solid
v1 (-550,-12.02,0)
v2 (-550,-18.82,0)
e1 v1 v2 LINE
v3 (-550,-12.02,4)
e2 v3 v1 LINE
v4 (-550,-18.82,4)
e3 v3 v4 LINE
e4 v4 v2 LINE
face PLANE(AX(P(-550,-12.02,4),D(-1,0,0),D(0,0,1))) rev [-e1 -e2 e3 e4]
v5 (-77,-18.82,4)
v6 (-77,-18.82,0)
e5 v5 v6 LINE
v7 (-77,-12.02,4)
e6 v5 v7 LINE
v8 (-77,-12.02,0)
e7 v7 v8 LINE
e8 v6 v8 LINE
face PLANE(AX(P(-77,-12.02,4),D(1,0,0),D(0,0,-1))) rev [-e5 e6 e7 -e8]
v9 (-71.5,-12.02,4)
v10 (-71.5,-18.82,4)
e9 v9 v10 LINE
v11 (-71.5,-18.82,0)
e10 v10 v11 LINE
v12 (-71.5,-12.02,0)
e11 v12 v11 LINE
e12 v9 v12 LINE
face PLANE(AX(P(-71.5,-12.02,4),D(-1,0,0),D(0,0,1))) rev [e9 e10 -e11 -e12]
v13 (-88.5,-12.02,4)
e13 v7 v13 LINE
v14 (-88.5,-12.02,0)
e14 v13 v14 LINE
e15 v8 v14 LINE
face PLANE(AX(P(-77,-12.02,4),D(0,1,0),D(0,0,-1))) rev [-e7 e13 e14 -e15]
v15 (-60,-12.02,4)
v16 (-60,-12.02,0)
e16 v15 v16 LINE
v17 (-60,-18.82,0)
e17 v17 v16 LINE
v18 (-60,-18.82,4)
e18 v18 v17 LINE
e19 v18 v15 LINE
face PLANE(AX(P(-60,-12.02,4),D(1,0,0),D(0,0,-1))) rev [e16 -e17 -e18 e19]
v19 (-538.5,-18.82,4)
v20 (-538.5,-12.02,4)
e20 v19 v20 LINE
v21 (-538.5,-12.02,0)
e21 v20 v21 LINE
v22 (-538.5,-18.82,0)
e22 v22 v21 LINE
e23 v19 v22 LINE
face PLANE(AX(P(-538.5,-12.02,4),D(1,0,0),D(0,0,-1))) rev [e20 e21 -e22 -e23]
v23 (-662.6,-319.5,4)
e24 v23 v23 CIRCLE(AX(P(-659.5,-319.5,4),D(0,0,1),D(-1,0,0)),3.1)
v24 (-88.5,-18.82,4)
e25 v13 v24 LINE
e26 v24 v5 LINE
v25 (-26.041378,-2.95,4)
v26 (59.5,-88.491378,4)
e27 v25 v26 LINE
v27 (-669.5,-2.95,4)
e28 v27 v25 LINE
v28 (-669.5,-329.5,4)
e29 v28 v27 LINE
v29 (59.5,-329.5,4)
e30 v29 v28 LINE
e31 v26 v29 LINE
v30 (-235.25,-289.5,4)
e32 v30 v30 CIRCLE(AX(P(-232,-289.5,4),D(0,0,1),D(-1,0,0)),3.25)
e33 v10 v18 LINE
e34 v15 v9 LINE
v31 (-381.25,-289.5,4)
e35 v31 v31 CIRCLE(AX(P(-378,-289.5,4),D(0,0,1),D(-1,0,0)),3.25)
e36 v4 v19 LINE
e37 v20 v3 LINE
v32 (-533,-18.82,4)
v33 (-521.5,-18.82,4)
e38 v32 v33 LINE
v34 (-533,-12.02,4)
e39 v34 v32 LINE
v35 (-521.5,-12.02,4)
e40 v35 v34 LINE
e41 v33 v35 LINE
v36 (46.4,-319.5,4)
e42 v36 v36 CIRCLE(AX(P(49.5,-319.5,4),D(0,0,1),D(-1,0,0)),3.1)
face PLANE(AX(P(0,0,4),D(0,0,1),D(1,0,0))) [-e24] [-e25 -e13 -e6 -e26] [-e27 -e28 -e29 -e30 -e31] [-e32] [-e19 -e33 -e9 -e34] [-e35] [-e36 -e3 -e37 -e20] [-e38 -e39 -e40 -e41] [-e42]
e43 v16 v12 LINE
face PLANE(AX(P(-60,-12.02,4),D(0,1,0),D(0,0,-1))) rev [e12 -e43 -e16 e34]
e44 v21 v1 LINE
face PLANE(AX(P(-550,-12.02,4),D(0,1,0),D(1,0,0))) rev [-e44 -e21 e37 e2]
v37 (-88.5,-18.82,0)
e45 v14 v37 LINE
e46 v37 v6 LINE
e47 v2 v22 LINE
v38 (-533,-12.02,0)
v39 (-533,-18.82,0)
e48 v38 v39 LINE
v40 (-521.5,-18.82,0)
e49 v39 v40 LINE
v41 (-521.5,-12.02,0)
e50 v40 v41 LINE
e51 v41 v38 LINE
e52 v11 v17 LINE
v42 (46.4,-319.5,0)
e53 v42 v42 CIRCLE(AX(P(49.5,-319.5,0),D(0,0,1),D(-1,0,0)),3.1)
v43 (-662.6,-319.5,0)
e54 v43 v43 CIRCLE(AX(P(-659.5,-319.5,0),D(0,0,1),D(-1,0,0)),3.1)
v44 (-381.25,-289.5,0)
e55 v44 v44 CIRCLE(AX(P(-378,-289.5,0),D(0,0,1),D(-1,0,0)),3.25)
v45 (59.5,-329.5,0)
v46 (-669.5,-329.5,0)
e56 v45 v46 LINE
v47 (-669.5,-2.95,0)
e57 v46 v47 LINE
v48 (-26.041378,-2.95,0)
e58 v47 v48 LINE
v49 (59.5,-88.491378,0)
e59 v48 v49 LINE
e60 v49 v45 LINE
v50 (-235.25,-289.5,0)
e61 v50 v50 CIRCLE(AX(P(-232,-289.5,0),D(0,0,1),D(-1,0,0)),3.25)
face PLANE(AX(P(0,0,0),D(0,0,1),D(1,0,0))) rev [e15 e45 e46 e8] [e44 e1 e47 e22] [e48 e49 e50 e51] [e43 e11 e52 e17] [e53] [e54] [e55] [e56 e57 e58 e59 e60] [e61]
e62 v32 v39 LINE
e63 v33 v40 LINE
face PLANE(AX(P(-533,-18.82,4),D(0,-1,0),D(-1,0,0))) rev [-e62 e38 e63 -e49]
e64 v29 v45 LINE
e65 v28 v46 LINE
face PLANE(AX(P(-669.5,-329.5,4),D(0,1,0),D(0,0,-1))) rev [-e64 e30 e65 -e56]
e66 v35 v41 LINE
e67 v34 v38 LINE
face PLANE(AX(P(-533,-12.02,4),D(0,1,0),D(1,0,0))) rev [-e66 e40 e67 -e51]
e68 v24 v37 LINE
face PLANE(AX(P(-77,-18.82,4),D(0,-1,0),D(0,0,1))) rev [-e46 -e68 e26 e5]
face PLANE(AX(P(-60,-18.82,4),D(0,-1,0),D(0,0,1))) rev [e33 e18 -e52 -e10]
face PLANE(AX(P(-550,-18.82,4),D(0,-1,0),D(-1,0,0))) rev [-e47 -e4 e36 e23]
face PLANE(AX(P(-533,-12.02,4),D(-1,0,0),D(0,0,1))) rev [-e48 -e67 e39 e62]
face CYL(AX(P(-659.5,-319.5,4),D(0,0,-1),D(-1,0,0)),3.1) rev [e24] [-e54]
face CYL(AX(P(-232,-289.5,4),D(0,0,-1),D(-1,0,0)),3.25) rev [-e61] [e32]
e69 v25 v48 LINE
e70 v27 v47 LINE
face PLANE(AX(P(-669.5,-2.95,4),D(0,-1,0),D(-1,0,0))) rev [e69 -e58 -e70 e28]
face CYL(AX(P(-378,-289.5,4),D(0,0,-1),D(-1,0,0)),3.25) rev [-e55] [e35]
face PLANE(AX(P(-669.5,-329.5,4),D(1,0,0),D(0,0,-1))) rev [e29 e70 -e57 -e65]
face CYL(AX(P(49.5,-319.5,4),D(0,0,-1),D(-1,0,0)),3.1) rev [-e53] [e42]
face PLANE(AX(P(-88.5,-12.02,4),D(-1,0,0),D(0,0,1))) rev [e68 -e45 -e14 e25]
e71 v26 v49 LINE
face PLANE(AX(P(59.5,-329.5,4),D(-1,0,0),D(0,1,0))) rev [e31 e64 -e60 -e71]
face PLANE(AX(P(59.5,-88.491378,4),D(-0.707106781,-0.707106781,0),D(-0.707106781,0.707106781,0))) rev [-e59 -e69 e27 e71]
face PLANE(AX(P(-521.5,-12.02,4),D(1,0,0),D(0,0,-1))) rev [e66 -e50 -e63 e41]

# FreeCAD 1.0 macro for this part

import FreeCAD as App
import Part
import Sketcher

V = App.Vector
Q = App.Units.Quantity

doc = App.newDocument("Part")
body = doc.addObject("PartDesign::Body", "Body")

sketch1 = body.newObject("Sketcher::SketchObject", "Sketch")
sketch1.AttachmentSupport = (doc.getObject("XY_Plane"), [""])
sketch1.MapMode = "FlatFace"
sketch1.addGeometry([
    Part.LineSegment(V(-669.5, 2.95, 0), V(-26.041378, 2.95, 0)),
    Part.LineSegment(V(-26.041378, 2.95, 0), V(59.5, 88.491378, 0)),
    Part.LineSegment(V(59.5, 88.491378, 0), V(59.5, 329.5, 0)),
    Part.LineSegment(V(59.5, 329.5, 0), V(-669.5, 329.5, 0)),
    Part.LineSegment(V(-669.5, 329.5, 0), V(-669.5, 2.95, 0)),
], False)
sketch1.addConstraint([
    Sketcher.Constraint("Coincident", 0, 2, 1, 1),
    Sketcher.Constraint("Coincident", 1, 2, 2, 1),
    Sketcher.Constraint("Coincident", 2, 2, 3, 1),
    Sketcher.Constraint("Coincident", 3, 2, 4, 1),
    Sketcher.Constraint("Coincident", 4, 2, 0, 1),
    Sketcher.Constraint("Horizontal", 0),
    Sketcher.Constraint("Vertical", 2),
    Sketcher.Constraint("Horizontal", 3),
    Sketcher.Constraint("Vertical", 4),
    Sketcher.Constraint("DistanceX", 3, 2, 3, 1, 729.0),
    Sketcher.Constraint("Angle", 1, Q("45 deg")),
    Sketcher.Constraint("DistanceY", 4, 2, 4, 1, 326.55),
    Sketcher.Constraint("DistanceX", -1, 1, 1, 2, 59.5),
    Sketcher.Constraint("DistanceY", -1, 1, 2, 2, 329.5),
    Sketcher.Constraint("DistanceX", 0, 1, 0, 2, 643.458622),
])
pad1 = body.newObject("PartDesign::Pad", "Pad")
pad1.Profile = sketch1
pad1.Length = 4

sketch2 = body.newObject("Sketcher::SketchObject", "Sketch001")
sketch2.AttachmentSupport = (doc.getObject("XY_Plane"), [""])
sketch2.MapMode = "FlatFace"
sketch2.addGeometry([
    Part.LineSegment(V(-60, 18.82, 0), V(-60, 12.02, 0)),
    Part.LineSegment(V(-60, 12.02, 0), V(-71.5, 12.02, 0)),
    Part.LineSegment(V(-71.5, 12.02, 0), V(-71.5, 18.82, 0)),
    Part.LineSegment(V(-71.5, 18.82, 0), V(-60, 18.82, 0)),
    Part.LineSegment(V(-77, 18.82, 0), V(-77, 12.02, 0)),
    Part.LineSegment(V(-77, 12.02, 0), V(-88.5, 12.02, 0)),
    Part.LineSegment(V(-88.5, 12.02, 0), V(-88.5, 18.82, 0)),
    Part.LineSegment(V(-88.5, 18.82, 0), V(-77, 18.82, 0)),
    Part.LineSegment(V(-521.5, 18.82, 0), V(-521.5, 12.02, 0)),
    Part.LineSegment(V(-521.5, 12.02, 0), V(-533, 12.02, 0)),
    Part.LineSegment(V(-533, 12.02, 0), V(-533, 18.82, 0)),
    Part.LineSegment(V(-533, 18.82, 0), V(-521.5, 18.82, 0)),
    Part.LineSegment(V(-538.5, 18.82, 0), V(-538.5, 12.02, 0)),
    Part.LineSegment(V(-538.5, 12.02, 0), V(-550, 12.02, 0)),
    Part.LineSegment(V(-550, 12.02, 0), V(-550, 18.82, 0)),
    Part.LineSegment(V(-550, 18.82, 0), V(-538.5, 18.82, 0)),
], False)
sketch2.addConstraint([
    Sketcher.Constraint("Coincident", 0, 2, 1, 1),
    Sketcher.Constraint("Coincident", 1, 2, 2, 1),
    Sketcher.Constraint("Coincident", 2, 2, 3, 1),
    Sketcher.Constraint("Coincident", 3, 2, 0, 1),
    Sketcher.Constraint("Coincident", 4, 2, 5, 1),
    Sketcher.Constraint("Coincident", 5, 2, 6, 1),
    Sketcher.Constraint("Coincident", 6, 2, 7, 1),
    Sketcher.Constraint("Coincident", 7, 2, 4, 1),
    Sketcher.Constraint("Coincident", 8, 2, 9, 1),
    Sketcher.Constraint("Coincident", 9, 2, 10, 1),
    Sketcher.Constraint("Coincident", 10, 2, 11, 1),
    Sketcher.Constraint("Coincident", 11, 2, 8, 1),
    Sketcher.Constraint("Coincident", 12, 2, 13, 1),
    Sketcher.Constraint("Coincident", 13, 2, 14, 1),
    Sketcher.Constraint("Coincident", 14, 2, 15, 1),
    Sketcher.Constraint("Coincident", 15, 2, 12, 1),
    Sketcher.Constraint("Vertical", 0),
    Sketcher.Constraint("Horizontal", 1),
    Sketcher.Constraint("Vertical", 2),
    Sketcher.Constraint("Horizontal", 3),
    Sketcher.Constraint("Vertical", 4),
    Sketcher.Constraint("Horizontal", 5),
    Sketcher.Constraint("Vertical", 6),
    Sketcher.Constraint("Horizontal", 7),
    Sketcher.Constraint("Vertical", 8),
    Sketcher.Constraint("Horizontal", 9),
    Sketcher.Constraint("Vertical", 10),
    Sketcher.Constraint("Horizontal", 11),
    Sketcher.Constraint("Vertical", 12),
    Sketcher.Constraint("Horizontal", 13),
    Sketcher.Constraint("Vertical", 14),
    Sketcher.Constraint("Horizontal", 15),
    Sketcher.Constraint("Horizontal", 1, 2, 4, 2),
    Sketcher.Constraint("Horizontal", 3, 2, 6, 2),
    Sketcher.Constraint("Horizontal", 5, 2, 8, 2),
    Sketcher.Constraint("Horizontal", 7, 2, 10, 2),
    Sketcher.Constraint("Horizontal", 9, 2, 12, 2),
    Sketcher.Constraint("Horizontal", 11, 2, 14, 2),
    Sketcher.Constraint("Equal", 3, 5),
    Sketcher.Constraint("Equal", 7, 9),
    Sketcher.Constraint("Equal", 11, 13),
    Sketcher.Constraint("DistanceX", 1, 2, 1, 1, 11.5),
    Sketcher.Constraint("DistanceY", 0, 2, 0, 1, 6.8),
    Sketcher.Constraint("DistanceX", 0, 2, -1, 1, 60.0),
    Sketcher.Constraint("DistanceX", 4, 2, -1, 1, 77.0),
    Sketcher.Constraint("DistanceX", 9, 2, -1, 1, 533.0),
    Sketcher.Constraint("DistanceX", 13, 2, -1, 1, 550.0),
    Sketcher.Constraint("DistanceY", -1, 1, 0, 2, 12.02),
])
pocket1 = body.newObject("PartDesign::Pocket", "Pocket")
pocket1.Profile = sketch2
pocket1.Type = "ThroughAll"
pocket1.Reversed = True

sketch3 = body.newObject("Sketcher::SketchObject", "Sketch002")
sketch3.AttachmentSupport = (doc.getObject("XY_Plane"), [""])
sketch3.MapMode = "FlatFace"
sketch3.addGeometry([
    Part.Circle(V(-232, 289.5, 0), V(0, 0, 1), 3.25),
    Part.Circle(V(-378, 289.5, 0), V(0, 0, 1), 3.25),
], False)
sketch3.addConstraint([
    Sketcher.Constraint("Equal", 0, 1),
    Sketcher.Constraint("Horizontal", 0, 3, 1, 3),
    Sketcher.Constraint("Diameter", 0, 6.5),
    Sketcher.Constraint("DistanceX", 0, 3, -1, 1, 232.0),
    Sketcher.Constraint("DistanceX", 1, 3, -1, 1, 378.0),
    Sketcher.Constraint("DistanceY", -1, 1, 0, 3, 289.5),
])
pocket2 = body.newObject("PartDesign::Pocket", "Pocket001")
pocket2.Profile = sketch3
pocket2.Type = "ThroughAll"
pocket2.Reversed = True

sketch4 = body.newObject("Sketcher::SketchObject", "Sketch003")
sketch4.AttachmentSupport = (doc.getObject("XY_Plane"), [""])
sketch4.MapMode = "FlatFace"
sketch4.addGeometry([
    Part.Circle(V(49.5, 319.5, 0), V(0, 0, 1), 3.1),
    Part.Circle(V(-659.5, 319.5, 0), V(0, 0, 1), 3.1),
], False)
sketch4.addConstraint([
    Sketcher.Constraint("Equal", 0, 1),
    Sketcher.Constraint("Horizontal", 0, 3, 1, 3),
    Sketcher.Constraint("Diameter", 0, 6.2),
    Sketcher.Constraint("DistanceX", 1, 3, 0, 3, 709.0),
    Sketcher.Constraint("DistanceX", -1, 1, 0, 3, 49.5),
    Sketcher.Constraint("DistanceY", -1, 1, 0, 3, 319.5),
])
pocket3 = body.newObject("PartDesign::Pocket", "Pocket002")
pocket3.Profile = sketch4
pocket3.Type = "ThroughAll"
pocket3.Reversed = True
body2 = doc.addObject("PartDesign::Body", "Body001")
doc.recompute()

mirroring = doc.addObject("Part::Mirroring", "Mirroring")
mirroring.Source = body
mirroring.Base = V(0, 0, 0)
mirroring.Normal = V(0, 1, 0)
body2.BaseFeature = mirroring
doc.recompute()
body.Visibility = False
mirroring.Visibility = False

doc.recompute()
